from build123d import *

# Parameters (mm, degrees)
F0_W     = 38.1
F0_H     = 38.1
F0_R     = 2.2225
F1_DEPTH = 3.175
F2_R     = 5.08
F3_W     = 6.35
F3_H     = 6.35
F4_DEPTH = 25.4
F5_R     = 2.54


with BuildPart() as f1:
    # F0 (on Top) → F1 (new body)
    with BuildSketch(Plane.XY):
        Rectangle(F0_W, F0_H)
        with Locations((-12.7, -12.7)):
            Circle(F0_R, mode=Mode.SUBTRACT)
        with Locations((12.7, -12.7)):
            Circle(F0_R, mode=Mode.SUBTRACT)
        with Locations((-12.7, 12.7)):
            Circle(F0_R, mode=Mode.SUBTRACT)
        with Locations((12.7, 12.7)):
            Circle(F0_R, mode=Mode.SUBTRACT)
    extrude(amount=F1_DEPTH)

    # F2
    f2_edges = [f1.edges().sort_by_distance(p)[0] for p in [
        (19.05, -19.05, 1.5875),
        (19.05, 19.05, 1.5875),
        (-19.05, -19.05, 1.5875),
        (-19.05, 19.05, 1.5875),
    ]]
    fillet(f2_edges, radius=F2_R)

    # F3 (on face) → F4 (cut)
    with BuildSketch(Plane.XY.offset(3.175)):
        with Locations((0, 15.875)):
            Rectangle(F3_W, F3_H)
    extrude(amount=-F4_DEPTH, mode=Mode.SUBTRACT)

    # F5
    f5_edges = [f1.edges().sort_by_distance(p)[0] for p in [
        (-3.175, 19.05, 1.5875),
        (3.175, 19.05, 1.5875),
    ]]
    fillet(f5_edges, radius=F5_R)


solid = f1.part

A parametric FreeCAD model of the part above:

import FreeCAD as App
import Part
import Sketcher
from FreeCAD import Vector
Q = App.Units.Quantity


def edges_at(feature, points):
    """Names of the edges that pass closest to the given points."""
    edges = feature.Shape.Edges
    near = lambda p: min(range(len(edges)), key=lambda i: edges[i].distToShape(Part.Vertex(*p))[0])
    return sorted({f"Edge{near(p) + 1}" for p in points})


def add_polygon(sketch, points):
    """Adds a closed chain of lines whose ends are joined by coincident constraints."""
    first, n = sketch.GeometryCount, len(points)
    for a, b in zip(points, points[1:] + points[:1]):
        sketch.addGeometry(Part.LineSegment(App.Vector(*a, 0), App.Vector(*b, 0)), False)
    for i in range(n):
        sketch.addConstraint(Sketcher.Constraint("Coincident", first + i, 2, first + (i + 1) % n, 1))

doc = App.newDocument("Part")
body = doc.addObject("PartDesign::Body", "Body")

sketch1 = body.newObject("Sketcher::SketchObject", "Sketch")
sketch1.AttachmentSupport = (doc.getObject("XY_Plane"), [""])
sketch1.MapMode = "FlatFace"
add_polygon(sketch1, [(-19.05, 19.05), (-19.05, -19.05), (19.05, -19.05), (19.05, 19.05)])
sketch1.addGeometry(Part.Circle(Vector(-12.7, -12.7, 0), Vector(0, 0, 1), 2.2225), False)
sketch1.addGeometry(Part.Circle(Vector(12.7, -12.7, 0), Vector(0, 0, 1), 2.2225), False)
sketch1.addGeometry(Part.Circle(Vector(-12.7, 12.7, 0), Vector(0, 0, 1), 2.2225), False)
sketch1.addGeometry(Part.Circle(Vector(12.7, 12.7, 0), Vector(0, 0, 1), 2.2225), False)
sketch1.addConstraint(Sketcher.Constraint("Vertical", 0))
sketch1.addConstraint(Sketcher.Constraint("Horizontal", 1))
sketch1.addConstraint(Sketcher.Constraint("Vertical", 2))
sketch1.addConstraint(Sketcher.Constraint("Horizontal", 3))
sketch1.addConstraint(Sketcher.Constraint("Equal", 4, 5))
sketch1.addConstraint(Sketcher.Constraint("Equal", 5, 6))
sketch1.addConstraint(Sketcher.Constraint("Equal", 6, 7))
sketch1.addConstraint(Sketcher.Constraint("Symmetric", 5, 3, 6, 3, -1, 1))
sketch1.addConstraint(Sketcher.Constraint("Symmetric", 4, 3, 7, 3, -1, 1))
sketch1.addConstraint(Sketcher.Constraint("Symmetric", 0, 2, 2, 2, -1, 1))
sketch1.addConstraint(Sketcher.Constraint("Symmetric", 4, 3, 5, 3, -2))
sketch1.addConstraint(Sketcher.Constraint("Equal", 3, 0))
sketch1.addConstraint(Sketcher.Constraint("Diameter", 4, Q("0.175 in")))
sketch1.addConstraint(Sketcher.Constraint("DistanceX", 1, 1, 1, 2, Q("1.5 in")))
sketch1.addConstraint(Sketcher.Constraint("DistanceX", 4, 3, 5, 3, Q("1 in")))
sketch1.addConstraint(Sketcher.Constraint("DistanceY", 4, 3, 6, 3, Q("1 in")))
pad1 = body.newObject("PartDesign::Pad", "Pad")
pad1.Profile = sketch1
pad1.Length = Q("0.125 in")
doc.recompute()

fillet = body.newObject("PartDesign::Fillet", "Fillet")
fillet.Base = (pad1, edges_at(pad1, [
    (19.05, -19.05, 1.587),
    (19.05, 19.05, 1.587),
    (-19.05, -19.05, 1.587),
    (-19.05, 19.05, 1.587),
]))
fillet.Radius = Q("0.2 in")

sketch2 = body.newObject("Sketcher::SketchObject", "Sketch001")
sketch2.AttachmentSupport = (doc.getObject("XY_Plane"), [""])
sketch2.MapMode = "FlatFace"
sketch2.AttachmentOffset = App.Placement(Vector(0, 0, 0.125 * 25.4), App.Rotation())
add_polygon(sketch2, [(-3.175, 19.05), (-3.175, 12.7), (3.175, 12.7), (3.175, 19.05)])
sketch2.addConstraint(Sketcher.Constraint("Vertical", 0))
sketch2.addConstraint(Sketcher.Constraint("Horizontal", 1))
sketch2.addConstraint(Sketcher.Constraint("Vertical", 2))
sketch2.addConstraint(Sketcher.Constraint("Horizontal", 3))
sketch2.addConstraint(Sketcher.Constraint("Equal", 3, 0))
sketch2.addConstraint(Sketcher.Constraint("DistanceX", 1, 1, 1, 2, Q("0.25 in")))
sketch2.addConstraint(Sketcher.Constraint("DistanceY", -1, 1, 0, 2, Q("0.5 in")))
sketch2.addConstraint(Sketcher.Constraint("DistanceX", 0, 2, -1, 1, Q("0.125 in")))
pocket1 = body.newObject("PartDesign::Pocket", "Pocket")
pocket1.Profile = sketch2
pocket1.Length = Q("1 in")
doc.recompute()

fillet2 = body.newObject("PartDesign::Fillet", "Fillet001")
fillet2.Base = (pocket1, edges_at(pocket1, [(-3.175, 19.05, 1.587), (3.175, 19.05, 1.587)]))
fillet2.Radius = Q("0.1 in")

doc.recompute()
